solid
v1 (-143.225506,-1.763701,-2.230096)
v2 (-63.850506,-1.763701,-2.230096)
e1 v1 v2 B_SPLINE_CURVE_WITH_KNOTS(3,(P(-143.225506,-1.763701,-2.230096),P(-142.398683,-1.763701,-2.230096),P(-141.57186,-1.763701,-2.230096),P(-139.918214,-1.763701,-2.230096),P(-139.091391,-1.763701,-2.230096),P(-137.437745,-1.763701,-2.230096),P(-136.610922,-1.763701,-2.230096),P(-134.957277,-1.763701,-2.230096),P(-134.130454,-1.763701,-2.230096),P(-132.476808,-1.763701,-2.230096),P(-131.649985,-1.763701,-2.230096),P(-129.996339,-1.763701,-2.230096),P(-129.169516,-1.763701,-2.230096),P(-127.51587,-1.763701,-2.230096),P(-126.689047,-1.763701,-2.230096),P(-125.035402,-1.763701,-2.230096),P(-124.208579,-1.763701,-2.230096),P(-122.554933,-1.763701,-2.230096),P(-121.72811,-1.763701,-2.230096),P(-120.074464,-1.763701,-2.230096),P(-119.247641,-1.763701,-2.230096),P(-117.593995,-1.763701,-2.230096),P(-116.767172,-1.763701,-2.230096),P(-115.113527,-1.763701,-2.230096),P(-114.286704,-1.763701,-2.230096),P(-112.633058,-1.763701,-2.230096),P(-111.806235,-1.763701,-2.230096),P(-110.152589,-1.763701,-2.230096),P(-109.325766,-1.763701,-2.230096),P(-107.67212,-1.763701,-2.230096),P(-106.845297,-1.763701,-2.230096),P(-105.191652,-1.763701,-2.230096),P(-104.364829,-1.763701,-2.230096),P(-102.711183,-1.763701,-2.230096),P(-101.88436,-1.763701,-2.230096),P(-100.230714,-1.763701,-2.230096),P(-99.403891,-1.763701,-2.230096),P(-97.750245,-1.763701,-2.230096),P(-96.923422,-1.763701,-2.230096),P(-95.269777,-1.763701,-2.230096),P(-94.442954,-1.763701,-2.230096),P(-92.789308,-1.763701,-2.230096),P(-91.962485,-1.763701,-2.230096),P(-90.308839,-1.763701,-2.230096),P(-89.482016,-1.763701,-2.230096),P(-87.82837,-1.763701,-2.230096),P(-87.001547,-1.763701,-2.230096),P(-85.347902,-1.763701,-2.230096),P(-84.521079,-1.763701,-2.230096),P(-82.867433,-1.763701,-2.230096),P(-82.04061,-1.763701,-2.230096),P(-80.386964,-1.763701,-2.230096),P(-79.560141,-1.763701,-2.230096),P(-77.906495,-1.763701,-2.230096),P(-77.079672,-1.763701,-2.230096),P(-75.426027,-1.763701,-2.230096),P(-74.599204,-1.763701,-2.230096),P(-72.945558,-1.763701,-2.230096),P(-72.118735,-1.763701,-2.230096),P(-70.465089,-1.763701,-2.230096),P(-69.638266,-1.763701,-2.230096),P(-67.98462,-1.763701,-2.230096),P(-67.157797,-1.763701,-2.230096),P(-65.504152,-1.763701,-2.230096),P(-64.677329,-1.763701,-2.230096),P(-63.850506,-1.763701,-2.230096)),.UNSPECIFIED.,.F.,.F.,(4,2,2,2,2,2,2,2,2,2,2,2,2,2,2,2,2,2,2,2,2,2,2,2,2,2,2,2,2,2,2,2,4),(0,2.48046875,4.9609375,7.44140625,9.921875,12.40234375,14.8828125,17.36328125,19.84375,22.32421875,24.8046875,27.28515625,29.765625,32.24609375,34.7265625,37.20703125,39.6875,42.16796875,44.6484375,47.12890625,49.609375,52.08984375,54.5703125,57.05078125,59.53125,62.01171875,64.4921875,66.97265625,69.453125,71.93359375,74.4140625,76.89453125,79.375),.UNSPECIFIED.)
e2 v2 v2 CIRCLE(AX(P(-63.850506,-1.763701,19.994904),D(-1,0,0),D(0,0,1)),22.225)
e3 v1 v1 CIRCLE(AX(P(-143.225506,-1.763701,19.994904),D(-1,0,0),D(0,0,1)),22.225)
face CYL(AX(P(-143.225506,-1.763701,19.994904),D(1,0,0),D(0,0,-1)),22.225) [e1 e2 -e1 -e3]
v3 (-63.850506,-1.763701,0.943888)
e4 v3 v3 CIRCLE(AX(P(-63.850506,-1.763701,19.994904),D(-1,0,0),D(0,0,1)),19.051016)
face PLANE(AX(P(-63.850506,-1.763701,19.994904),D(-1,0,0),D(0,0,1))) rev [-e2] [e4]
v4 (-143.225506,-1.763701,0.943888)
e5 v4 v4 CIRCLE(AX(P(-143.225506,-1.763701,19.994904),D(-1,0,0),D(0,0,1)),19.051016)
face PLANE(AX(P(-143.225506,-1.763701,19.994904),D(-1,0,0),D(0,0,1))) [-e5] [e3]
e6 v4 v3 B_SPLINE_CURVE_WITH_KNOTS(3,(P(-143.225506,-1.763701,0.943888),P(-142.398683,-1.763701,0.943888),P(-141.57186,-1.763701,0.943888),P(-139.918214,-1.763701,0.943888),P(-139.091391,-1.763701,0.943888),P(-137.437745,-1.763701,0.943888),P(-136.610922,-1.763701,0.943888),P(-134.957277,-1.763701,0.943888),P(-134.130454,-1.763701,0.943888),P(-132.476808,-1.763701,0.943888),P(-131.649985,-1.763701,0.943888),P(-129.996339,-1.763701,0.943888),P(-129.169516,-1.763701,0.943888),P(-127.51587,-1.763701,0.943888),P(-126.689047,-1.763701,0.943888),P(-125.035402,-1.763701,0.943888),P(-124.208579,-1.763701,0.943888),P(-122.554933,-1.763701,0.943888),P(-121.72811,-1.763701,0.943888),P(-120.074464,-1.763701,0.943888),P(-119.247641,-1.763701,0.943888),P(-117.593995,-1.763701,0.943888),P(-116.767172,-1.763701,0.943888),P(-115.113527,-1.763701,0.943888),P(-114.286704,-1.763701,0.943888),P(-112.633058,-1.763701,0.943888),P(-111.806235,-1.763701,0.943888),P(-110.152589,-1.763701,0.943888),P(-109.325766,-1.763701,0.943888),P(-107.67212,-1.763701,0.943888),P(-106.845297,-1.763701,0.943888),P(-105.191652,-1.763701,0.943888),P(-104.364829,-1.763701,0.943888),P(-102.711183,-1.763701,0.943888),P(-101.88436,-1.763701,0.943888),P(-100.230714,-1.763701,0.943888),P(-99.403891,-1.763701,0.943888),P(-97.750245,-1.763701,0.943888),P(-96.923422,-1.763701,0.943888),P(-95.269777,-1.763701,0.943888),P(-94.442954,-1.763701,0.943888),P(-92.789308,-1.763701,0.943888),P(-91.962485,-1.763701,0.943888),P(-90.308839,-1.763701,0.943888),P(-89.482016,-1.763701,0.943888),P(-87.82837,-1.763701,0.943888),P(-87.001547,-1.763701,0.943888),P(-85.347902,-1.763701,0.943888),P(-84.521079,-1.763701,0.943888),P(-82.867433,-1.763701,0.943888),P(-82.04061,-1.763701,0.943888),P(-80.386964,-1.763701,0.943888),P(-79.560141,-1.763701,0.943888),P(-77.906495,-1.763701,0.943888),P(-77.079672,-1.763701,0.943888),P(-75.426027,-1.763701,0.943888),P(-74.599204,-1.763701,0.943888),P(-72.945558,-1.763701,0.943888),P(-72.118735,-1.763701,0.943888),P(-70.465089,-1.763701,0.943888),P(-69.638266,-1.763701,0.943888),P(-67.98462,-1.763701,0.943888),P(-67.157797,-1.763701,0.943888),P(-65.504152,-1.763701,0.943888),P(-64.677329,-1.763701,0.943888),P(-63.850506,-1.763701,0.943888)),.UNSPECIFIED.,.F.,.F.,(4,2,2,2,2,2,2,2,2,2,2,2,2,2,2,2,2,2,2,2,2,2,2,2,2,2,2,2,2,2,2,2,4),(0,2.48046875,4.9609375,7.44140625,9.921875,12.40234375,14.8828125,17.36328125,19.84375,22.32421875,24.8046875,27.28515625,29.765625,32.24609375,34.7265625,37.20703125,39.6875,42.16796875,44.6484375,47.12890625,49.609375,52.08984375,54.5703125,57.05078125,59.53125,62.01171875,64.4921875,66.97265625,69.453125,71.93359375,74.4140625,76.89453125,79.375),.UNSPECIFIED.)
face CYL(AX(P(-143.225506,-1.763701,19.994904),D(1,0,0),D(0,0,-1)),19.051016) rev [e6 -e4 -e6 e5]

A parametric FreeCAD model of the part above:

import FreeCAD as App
import Part
import Sketcher

V = App.Vector
Q = App.Units.Quantity

doc = App.newDocument("Part")
body = doc.addObject("PartDesign::Body", "Body")

sketch1 = body.newObject("Sketcher::SketchObject", "Sketch")
sketch1.AttachmentSupport = (doc.getObject("YZ_Plane"), [""])
sketch1.MapMode = "FlatFace"
sketch1.AttachmentOffset = App.Placement(V(0, 0, -63.850506), App.Rotation())
sketch1.addGeometry(Part.Circle(V(-2, 20, 0), V(0, 0, 1), 22), False)
sketch1.addGeometry(Part.Circle(V(-2, 20, 0), V(0, 0, 1), 19), False)
sketch1.addConstraint(Sketcher.Constraint("Coincident", 1, 3, 0, 3))
sketch1.addConstraint(Sketcher.Constraint("Diameter", 0, Q("1.75 in")))
sketch1.addConstraint(Sketcher.Constraint("Diameter", 1, Q("38.102032 mm")))
sketch1.addConstraint(Sketcher.Constraint("DistanceX", 0, 3, -1, 1, Q("1.763701 mm")))
sketch1.addConstraint(Sketcher.Constraint("DistanceY", -1, 1, 0, 3, Q("19.994904 mm")))
pad1 = body.newObject("PartDesign::Pad", "Pad")
pad1.Profile = sketch1
pad1.Length = Q("3.125 in")
pad1.Reversed = True

doc.recompute()
